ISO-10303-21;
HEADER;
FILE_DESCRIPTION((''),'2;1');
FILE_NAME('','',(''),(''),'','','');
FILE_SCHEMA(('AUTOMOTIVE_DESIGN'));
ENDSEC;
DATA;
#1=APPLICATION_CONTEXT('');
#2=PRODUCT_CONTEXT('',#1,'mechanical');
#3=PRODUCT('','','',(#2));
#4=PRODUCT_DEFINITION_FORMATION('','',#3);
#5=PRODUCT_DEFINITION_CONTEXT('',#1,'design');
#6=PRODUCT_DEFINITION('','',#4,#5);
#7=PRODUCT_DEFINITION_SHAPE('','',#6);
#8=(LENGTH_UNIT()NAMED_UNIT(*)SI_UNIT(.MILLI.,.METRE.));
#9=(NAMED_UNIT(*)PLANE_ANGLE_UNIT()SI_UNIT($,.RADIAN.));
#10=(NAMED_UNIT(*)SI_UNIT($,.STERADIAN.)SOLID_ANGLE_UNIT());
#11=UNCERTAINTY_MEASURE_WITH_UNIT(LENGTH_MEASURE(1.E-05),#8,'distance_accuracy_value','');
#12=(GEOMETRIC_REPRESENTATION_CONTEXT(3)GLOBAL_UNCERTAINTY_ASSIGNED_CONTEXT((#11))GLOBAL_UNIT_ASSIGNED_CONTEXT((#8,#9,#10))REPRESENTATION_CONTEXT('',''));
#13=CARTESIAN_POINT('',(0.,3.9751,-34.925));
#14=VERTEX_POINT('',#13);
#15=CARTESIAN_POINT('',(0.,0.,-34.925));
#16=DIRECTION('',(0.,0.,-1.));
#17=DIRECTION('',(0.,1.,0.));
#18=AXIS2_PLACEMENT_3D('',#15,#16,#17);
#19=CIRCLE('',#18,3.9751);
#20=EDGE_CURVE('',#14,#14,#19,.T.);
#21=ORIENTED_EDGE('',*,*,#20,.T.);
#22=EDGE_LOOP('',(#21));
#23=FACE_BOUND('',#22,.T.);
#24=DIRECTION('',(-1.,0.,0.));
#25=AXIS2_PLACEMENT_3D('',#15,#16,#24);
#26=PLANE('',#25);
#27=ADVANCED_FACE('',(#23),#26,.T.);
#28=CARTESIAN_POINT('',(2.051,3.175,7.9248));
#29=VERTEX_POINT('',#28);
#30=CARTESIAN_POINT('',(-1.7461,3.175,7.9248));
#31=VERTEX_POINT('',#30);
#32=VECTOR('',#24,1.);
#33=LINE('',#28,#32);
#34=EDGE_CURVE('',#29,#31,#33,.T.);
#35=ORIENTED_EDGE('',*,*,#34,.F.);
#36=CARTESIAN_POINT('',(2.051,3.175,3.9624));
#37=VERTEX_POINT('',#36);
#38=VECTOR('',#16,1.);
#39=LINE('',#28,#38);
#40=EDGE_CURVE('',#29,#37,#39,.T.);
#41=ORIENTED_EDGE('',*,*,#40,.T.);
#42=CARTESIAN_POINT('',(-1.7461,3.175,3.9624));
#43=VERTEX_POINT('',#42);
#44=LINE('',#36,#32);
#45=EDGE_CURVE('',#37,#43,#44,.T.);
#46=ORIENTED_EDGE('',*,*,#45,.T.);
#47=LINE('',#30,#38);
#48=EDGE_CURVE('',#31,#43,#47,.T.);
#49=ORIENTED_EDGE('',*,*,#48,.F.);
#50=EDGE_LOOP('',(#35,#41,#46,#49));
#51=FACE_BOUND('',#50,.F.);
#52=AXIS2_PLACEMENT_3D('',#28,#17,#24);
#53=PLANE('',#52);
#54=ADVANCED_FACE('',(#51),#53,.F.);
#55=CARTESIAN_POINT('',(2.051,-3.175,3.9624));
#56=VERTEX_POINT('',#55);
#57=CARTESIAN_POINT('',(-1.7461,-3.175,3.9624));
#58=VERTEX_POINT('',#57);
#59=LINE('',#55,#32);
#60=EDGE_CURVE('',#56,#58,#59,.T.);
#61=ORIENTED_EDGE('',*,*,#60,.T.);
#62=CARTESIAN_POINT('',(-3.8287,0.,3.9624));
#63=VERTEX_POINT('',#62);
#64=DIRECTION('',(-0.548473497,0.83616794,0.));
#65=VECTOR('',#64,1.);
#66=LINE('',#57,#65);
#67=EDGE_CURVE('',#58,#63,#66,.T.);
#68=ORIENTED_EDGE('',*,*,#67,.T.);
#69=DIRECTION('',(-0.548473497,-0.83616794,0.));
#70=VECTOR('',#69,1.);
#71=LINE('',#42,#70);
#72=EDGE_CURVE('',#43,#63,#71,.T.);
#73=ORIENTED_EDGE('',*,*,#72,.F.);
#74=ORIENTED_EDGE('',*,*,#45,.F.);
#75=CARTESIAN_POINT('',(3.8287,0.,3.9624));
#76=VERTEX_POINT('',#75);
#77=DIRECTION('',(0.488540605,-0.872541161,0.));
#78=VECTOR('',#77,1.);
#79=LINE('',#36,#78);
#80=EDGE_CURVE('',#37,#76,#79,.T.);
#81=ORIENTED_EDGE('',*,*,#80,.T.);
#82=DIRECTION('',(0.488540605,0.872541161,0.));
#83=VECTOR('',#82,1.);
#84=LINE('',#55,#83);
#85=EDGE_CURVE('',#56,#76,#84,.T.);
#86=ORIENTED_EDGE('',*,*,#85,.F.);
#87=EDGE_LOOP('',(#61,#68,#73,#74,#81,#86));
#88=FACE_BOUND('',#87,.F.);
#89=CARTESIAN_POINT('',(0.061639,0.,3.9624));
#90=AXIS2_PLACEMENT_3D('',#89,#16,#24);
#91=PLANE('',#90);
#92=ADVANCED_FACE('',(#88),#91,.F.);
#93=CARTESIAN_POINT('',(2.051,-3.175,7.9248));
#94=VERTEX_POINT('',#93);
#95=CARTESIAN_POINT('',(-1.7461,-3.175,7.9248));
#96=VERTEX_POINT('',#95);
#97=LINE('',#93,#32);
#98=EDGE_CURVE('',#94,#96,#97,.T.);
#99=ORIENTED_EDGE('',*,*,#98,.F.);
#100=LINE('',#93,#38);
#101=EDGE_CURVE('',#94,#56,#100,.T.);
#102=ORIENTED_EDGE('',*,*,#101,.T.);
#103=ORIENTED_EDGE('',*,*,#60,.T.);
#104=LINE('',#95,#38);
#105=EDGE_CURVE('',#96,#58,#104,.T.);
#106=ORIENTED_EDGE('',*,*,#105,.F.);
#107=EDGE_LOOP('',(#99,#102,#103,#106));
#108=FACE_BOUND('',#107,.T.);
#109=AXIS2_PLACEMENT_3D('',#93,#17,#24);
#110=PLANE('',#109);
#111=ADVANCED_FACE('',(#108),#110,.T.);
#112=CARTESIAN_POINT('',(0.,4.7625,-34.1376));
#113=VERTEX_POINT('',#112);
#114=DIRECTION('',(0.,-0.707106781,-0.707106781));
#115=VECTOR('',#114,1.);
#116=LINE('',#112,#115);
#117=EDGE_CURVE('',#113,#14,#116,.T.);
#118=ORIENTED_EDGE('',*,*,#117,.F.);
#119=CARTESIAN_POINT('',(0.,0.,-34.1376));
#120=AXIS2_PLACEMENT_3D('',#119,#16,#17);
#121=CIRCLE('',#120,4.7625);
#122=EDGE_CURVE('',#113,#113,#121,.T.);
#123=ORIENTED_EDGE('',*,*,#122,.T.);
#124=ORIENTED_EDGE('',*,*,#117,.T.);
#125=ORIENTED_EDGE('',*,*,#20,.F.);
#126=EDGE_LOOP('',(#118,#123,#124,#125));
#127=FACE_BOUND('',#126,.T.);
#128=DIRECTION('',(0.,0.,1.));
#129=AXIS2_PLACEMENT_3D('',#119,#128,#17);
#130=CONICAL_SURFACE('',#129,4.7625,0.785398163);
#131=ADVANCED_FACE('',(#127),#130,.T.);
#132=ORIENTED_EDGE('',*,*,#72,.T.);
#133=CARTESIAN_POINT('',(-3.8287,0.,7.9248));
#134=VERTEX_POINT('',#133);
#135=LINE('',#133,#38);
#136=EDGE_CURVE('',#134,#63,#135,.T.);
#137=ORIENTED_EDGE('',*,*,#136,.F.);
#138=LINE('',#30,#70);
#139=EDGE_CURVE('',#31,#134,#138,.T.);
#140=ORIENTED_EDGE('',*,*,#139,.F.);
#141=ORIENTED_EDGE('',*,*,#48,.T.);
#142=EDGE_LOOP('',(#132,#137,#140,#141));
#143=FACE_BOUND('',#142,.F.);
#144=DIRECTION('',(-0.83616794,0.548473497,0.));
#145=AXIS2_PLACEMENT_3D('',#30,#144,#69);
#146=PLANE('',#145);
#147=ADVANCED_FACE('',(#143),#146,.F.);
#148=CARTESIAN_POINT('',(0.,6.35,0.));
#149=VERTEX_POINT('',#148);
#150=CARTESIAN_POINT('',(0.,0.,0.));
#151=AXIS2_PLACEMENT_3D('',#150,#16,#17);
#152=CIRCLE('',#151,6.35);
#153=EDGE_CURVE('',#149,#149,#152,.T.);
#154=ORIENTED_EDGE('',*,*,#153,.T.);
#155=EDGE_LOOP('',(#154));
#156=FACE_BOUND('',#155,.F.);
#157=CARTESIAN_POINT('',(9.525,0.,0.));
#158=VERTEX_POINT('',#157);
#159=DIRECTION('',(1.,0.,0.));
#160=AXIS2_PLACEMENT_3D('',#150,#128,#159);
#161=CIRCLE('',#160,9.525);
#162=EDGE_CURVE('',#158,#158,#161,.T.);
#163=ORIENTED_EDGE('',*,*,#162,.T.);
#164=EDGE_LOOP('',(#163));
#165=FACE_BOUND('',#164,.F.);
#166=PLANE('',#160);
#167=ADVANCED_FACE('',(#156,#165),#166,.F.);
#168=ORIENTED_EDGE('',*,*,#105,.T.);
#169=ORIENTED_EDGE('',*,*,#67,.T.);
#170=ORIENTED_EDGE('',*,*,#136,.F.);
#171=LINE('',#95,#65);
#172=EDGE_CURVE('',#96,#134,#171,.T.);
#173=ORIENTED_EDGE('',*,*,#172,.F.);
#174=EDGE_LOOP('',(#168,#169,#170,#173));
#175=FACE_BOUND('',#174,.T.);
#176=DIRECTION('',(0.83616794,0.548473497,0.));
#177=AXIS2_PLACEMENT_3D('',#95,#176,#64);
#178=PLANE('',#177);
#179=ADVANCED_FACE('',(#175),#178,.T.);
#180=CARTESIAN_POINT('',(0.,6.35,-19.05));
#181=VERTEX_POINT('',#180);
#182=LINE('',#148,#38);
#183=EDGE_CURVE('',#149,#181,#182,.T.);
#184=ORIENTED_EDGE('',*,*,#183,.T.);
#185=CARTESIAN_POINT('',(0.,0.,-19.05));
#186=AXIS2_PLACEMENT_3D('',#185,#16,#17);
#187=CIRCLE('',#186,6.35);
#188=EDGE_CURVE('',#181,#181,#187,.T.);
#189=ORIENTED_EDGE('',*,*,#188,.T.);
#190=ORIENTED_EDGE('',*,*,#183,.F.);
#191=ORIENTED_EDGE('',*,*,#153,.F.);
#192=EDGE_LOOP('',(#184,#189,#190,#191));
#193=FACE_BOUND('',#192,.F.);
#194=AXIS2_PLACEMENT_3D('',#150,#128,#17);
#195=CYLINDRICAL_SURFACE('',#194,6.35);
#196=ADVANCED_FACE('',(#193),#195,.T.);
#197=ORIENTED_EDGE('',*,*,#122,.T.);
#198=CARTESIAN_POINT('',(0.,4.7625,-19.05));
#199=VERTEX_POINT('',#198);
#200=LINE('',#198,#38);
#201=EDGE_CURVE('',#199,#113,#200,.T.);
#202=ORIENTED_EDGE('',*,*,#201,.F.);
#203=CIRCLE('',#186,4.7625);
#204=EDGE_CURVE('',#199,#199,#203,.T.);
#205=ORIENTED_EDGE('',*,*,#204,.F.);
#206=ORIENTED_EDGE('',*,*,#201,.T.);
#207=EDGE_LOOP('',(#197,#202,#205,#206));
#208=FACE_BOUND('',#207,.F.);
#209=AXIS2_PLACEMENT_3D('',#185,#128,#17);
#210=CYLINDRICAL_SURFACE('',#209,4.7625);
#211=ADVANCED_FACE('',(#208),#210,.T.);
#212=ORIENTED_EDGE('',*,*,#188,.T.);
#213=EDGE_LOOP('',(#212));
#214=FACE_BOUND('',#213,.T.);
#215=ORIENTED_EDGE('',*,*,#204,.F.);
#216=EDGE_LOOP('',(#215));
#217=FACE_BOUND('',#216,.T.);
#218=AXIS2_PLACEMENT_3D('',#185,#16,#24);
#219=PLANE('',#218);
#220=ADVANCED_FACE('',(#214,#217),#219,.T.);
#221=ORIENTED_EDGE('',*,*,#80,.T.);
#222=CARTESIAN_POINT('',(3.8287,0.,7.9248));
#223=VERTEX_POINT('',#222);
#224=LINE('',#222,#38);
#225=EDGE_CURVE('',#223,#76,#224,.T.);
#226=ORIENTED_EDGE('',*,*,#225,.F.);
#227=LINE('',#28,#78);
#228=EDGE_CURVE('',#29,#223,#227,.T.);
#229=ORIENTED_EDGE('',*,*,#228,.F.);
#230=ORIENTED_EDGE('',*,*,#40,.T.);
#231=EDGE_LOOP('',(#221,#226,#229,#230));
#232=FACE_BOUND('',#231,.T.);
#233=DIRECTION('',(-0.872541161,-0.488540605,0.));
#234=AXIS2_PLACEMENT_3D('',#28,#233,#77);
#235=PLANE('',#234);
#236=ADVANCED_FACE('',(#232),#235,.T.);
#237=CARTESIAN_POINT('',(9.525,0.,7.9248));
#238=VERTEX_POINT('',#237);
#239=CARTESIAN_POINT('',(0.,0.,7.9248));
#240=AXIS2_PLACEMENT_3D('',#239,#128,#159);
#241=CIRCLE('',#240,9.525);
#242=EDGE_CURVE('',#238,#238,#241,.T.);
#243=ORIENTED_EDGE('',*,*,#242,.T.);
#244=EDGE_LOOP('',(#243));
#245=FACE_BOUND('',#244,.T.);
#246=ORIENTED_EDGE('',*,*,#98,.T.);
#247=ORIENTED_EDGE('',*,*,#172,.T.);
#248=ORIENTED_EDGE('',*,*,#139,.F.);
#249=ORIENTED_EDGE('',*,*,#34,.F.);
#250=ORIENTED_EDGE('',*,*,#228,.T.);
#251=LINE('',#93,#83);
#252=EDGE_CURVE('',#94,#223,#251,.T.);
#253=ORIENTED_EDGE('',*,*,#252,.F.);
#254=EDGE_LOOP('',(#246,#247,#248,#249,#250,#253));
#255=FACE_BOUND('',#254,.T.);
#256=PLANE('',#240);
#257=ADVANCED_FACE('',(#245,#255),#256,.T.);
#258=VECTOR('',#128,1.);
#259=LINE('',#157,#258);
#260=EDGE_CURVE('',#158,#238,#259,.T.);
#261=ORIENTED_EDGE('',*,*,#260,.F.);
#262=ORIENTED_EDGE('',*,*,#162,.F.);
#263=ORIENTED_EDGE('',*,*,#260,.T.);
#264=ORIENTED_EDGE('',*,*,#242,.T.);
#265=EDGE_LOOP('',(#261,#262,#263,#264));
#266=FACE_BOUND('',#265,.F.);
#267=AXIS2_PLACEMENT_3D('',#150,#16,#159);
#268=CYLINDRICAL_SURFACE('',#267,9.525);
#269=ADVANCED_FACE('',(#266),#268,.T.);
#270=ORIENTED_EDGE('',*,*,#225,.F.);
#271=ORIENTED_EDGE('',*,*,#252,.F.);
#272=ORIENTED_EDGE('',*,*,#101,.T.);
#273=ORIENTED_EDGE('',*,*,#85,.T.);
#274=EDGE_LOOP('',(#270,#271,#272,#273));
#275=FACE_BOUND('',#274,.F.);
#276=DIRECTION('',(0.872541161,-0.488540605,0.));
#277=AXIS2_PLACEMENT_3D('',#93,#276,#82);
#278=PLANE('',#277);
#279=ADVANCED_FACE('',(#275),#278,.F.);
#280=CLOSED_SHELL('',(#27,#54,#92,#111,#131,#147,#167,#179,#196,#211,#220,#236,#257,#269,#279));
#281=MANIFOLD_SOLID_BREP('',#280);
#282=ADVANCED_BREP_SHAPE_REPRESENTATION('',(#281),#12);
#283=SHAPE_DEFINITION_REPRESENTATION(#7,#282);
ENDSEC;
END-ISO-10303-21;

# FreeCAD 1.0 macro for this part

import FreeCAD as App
import Part
import Sketcher
from FreeCAD import Vector
Q = App.Units.Quantity


def edges_at(feature, points):
    """Names of the edges that pass closest to the given points."""
    edges = feature.Shape.Edges
    near = lambda p: min(range(len(edges)), key=lambda i: edges[i].distToShape(Part.Vertex(*p))[0])
    return sorted({f"Edge{near(p) + 1}" for p in points})

doc = App.newDocument("Part")
body = doc.addObject("PartDesign::Body", "Body")

# Sketch on XY plane
sketch1 = body.newObject("Sketcher::SketchObject", "Sketch")
sketch1.AttachmentSupport = (doc.getObject("XY_Plane"), [""])
sketch1.MapMode = "FlatFace"
sketch1.addGeometry(Part.Circle(Vector(0, 0, 0), Vector(0, 0, 1), 10), False)
sketch1.addConstraint(Sketcher.Constraint("Coincident", 0, 3, -1, 1))
sketch1.addConstraint(Sketcher.Constraint("Diameter", 0, Q("0.75 in")))
pad1 = body.newObject("PartDesign::Pad", "Pad")
pad1.Profile = sketch1
pad1.Length = Q("0.312 in")

# Sketch on XY plane
sketch2 = body.newObject("Sketcher::SketchObject", "Sketch001")
sketch2.AttachmentSupport = (doc.getObject("XY_Plane"), [""])
sketch2.MapMode = "FlatFace"
sketch2.addGeometry(Part.Circle(Vector(0, 0, 0), Vector(0, 0, 1), 6), False)
sketch2.addConstraint(Sketcher.Constraint("Coincident", 0, 3, -1, 1))
sketch2.addConstraint(Sketcher.Constraint("Diameter", 0, Q("0.5 in")))
pad2 = body.newObject("PartDesign::Pad", "Pad001")
pad2.Profile = sketch2
pad2.Length = Q("0.75 in")
pad2.Reversed = True

# Sketch on XY plane
sketch3 = body.newObject("Sketcher::SketchObject", "Sketch002")
sketch3.AttachmentSupport = (doc.getObject("XY_Plane"), [""])
sketch3.MapMode = "FlatFace"
sketch3.AttachmentOffset = App.Placement(Vector(0, 0, -0.75 * 25.4), App.Rotation())
sketch3.addGeometry(Part.Circle(Vector(0, 0, 0), Vector(0, 0, 1), 4.8), False)
sketch3.addConstraint(Sketcher.Constraint("Coincident", 0, 3, -1, 1))
sketch3.addConstraint(Sketcher.Constraint("Diameter", 0, Q("0.375 in")))
pad3 = body.newObject("PartDesign::Pad", "Pad002")
pad3.Profile = sketch3
pad3.Length = Q("0.625 in")
pad3.Reversed = True

# Sketch on XY plane
sketch4 = body.newObject("Sketcher::SketchObject", "Sketch003")
sketch4.AttachmentSupport = (doc.getObject("XY_Plane"), [""])
sketch4.MapMode = "FlatFace"
sketch4.AttachmentOffset = App.Placement(Vector(0, 0, 0.312 * 25.4), App.Rotation())
sketch4.addGeometry(Part.LineSegment(Vector(-3.8, 0, 0), Vector(-1.7, -3.2, 0)), False)
sketch4.addGeometry(Part.LineSegment(Vector(-1.7, -3.2, 0), Vector(2.1, -3.2, 0)), False)
sketch4.addGeometry(Part.LineSegment(Vector(2.1, -3.2, 0), Vector(3.8, 0, 0)), False)
sketch4.addGeometry(Part.LineSegment(Vector(3.8, 0, 0), Vector(2.1, 3.2, 0)), False)
sketch4.addGeometry(Part.LineSegment(Vector(2.1, 3.2, 0), Vector(-1.7, 3.2, 0)), False)
sketch4.addGeometry(Part.LineSegment(Vector(-1.7, 3.2, 0), Vector(-3.8, 0, 0)), False)
sketch4.addConstraint(Sketcher.Constraint("Coincident", 0, 2, 1, 1))
sketch4.addConstraint(Sketcher.Constraint("Coincident", 1, 2, 2, 1))
sketch4.addConstraint(Sketcher.Constraint("Coincident", 2, 2, 3, 1))
sketch4.addConstraint(Sketcher.Constraint("Coincident", 3, 2, 4, 1))
sketch4.addConstraint(Sketcher.Constraint("Coincident", 4, 2, 5, 1))
sketch4.addConstraint(Sketcher.Constraint("Coincident", 5, 2, 0, 1))
sketch4.addConstraint(Sketcher.Constraint("Horizontal", 1))
sketch4.addConstraint(Sketcher.Constraint("Horizontal", 4))
sketch4.addConstraint(Sketcher.Constraint("Symmetric", 2, 2, 5, 2, -1, 1))
sketch4.addConstraint(Sketcher.Constraint("Symmetric", 1, 2, 3, 2, -1))
sketch4.addConstraint(Sketcher.Constraint("PointOnObject", 2, 2, -1))
sketch4.addConstraint(Sketcher.Constraint("Vertical", 0, 2, 4, 2))
sketch4.addConstraint(Sketcher.Constraint("DistanceX", 1, 2, 2, 2, Q("0.07 in")))
sketch4.addConstraint(Sketcher.Constraint("DistanceY", 1, 2, 3, 2, Q("0.25 in")))
sketch4.addConstraint(Sketcher.Constraint("DistanceX", 1, 1, 1, 2, Q("0.1495 in")))
sketch4.addConstraint(Sketcher.Constraint("DistanceX", 5, 2, 0, 2, Q("0.082 in")))
pocket1 = body.newObject("PartDesign::Pocket", "Pocket")
pocket1.Profile = sketch4
pocket1.Length = Q("0.156 in")
doc.recompute()

chamfer = body.newObject("PartDesign::Chamfer", "Chamfer")
chamfer.Base = (pocket1, edges_at(pocket1, [(0, -4.763, -34.925)]))
chamfer.Size = Q("0.031 in")

doc.recompute()
